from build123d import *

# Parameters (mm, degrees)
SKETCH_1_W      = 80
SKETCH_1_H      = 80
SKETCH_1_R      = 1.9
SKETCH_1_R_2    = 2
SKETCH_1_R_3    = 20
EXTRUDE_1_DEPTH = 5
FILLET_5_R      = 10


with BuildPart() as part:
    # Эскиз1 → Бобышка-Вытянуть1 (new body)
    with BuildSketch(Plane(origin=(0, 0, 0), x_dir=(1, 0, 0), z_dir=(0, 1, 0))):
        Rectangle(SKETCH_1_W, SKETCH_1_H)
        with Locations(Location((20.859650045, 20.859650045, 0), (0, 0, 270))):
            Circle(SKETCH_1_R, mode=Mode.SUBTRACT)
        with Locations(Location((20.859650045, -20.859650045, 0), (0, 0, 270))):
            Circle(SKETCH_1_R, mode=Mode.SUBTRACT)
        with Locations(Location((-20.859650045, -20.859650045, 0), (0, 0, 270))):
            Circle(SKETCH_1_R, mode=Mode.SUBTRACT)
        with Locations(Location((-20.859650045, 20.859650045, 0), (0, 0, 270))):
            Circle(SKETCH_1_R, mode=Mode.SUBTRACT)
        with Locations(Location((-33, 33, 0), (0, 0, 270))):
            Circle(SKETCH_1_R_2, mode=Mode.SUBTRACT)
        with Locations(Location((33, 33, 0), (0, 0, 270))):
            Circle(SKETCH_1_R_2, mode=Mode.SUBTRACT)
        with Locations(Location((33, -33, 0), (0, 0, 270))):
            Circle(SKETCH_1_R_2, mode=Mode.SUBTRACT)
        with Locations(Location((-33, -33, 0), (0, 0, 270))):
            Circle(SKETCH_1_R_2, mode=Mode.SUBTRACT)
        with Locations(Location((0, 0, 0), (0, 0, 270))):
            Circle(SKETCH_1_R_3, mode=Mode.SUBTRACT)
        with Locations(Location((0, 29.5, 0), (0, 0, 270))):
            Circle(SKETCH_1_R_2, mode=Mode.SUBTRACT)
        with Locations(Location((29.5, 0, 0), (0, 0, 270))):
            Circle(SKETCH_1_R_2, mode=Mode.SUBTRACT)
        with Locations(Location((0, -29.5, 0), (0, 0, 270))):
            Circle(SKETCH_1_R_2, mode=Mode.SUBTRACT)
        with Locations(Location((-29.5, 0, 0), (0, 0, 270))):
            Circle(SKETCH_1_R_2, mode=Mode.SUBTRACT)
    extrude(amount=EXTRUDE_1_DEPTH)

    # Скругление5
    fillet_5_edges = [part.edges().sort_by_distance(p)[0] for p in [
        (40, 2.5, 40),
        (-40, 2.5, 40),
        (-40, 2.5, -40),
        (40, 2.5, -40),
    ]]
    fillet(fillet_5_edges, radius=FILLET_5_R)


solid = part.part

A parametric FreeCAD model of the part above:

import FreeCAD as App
import Part
import Sketcher
from FreeCAD import Vector
Q = App.Units.Quantity


def edges_at(feature, points):
    """Names of the edges that pass closest to the given points."""
    edges = feature.Shape.Edges
    near = lambda p: min(range(len(edges)), key=lambda i: edges[i].distToShape(Part.Vertex(*p))[0])
    return sorted({f"Edge{near(p) + 1}" for p in points})


def add_polygon(sketch, points):
    """Adds a closed chain of lines whose ends are joined by coincident constraints."""
    first, n = sketch.GeometryCount, len(points)
    for a, b in zip(points, points[1:] + points[:1]):
        sketch.addGeometry(Part.LineSegment(App.Vector(*a, 0), App.Vector(*b, 0)), False)
    for i in range(n):
        sketch.addConstraint(Sketcher.Constraint("Coincident", first + i, 2, first + (i + 1) % n, 1))

doc = App.newDocument("Part")
body = doc.addObject("PartDesign::Body", "Body")

sketch1 = body.newObject("Sketcher::SketchObject", "Sketch")
sketch1.AttachmentSupport = (doc.getObject("XZ_Plane"), [""])
sketch1.MapMode = "FlatFace"
add_polygon(sketch1, [(-40, -40), (-40, 40), (40, 40), (40, -40)])
sketch1.addGeometry(Part.Circle(Vector(-33, 33, 0), Vector(0, 0, 1), 2), False)
sketch1.addGeometry(Part.Circle(Vector(-20.9, 20.9, 0), Vector(0, 0, 1), 1.9), False)
sketch1.addGeometry(Part.Circle(Vector(0, 29.5, 0), Vector(0, 0, 1), 2), False)
sketch1.addGeometry(Part.Circle(Vector(33, 33, 0), Vector(0, 0, 1), 2), False)
sketch1.addGeometry(Part.Circle(Vector(20.9, 20.9, 0), Vector(0, 0, 1), 1.9), False)
sketch1.addGeometry(Part.Circle(Vector(-29.5, 0, 0), Vector(0, 0, 1), 2), False)
sketch1.addGeometry(Part.Circle(Vector(-20.9, -20.9, 0), Vector(0, 0, 1), 1.9), False)
sketch1.addGeometry(Part.Circle(Vector(-33, -33, 0), Vector(0, 0, 1), 2), False)
sketch1.addGeometry(Part.Circle(Vector(0, 0, 0), Vector(0, 0, 1), 20), False)
sketch1.addGeometry(Part.Circle(Vector(29.5, 0, 0), Vector(0, 0, 1), 2), False)
sketch1.addGeometry(Part.Circle(Vector(0, -29.5, 0), Vector(0, 0, 1), 2), False)
sketch1.addGeometry(Part.Circle(Vector(20.9, -20.9, 0), Vector(0, 0, 1), 1.9), False)
sketch1.addGeometry(Part.Circle(Vector(33, -33, 0), Vector(0, 0, 1), 2), False)
sketch1.addConstraint(Sketcher.Constraint("Vertical", 0))
sketch1.addConstraint(Sketcher.Constraint("Horizontal", 1))
sketch1.addConstraint(Sketcher.Constraint("Vertical", 2))
sketch1.addConstraint(Sketcher.Constraint("Horizontal", 3))
sketch1.addConstraint(Sketcher.Constraint("Coincident", 12, 3, -1, 1))
sketch1.addConstraint(Sketcher.Constraint("Equal", 4, 6))
sketch1.addConstraint(Sketcher.Constraint("Equal", 6, 7))
sketch1.addConstraint(Sketcher.Constraint("Equal", 5, 8))
sketch1.addConstraint(Sketcher.Constraint("Equal", 7, 9))
sketch1.addConstraint(Sketcher.Constraint("Equal", 8, 10))
sketch1.addConstraint(Sketcher.Constraint("Equal", 9, 11))
sketch1.addConstraint(Sketcher.Constraint("Equal", 11, 13))
sketch1.addConstraint(Sketcher.Constraint("Equal", 13, 14))
sketch1.addConstraint(Sketcher.Constraint("Equal", 10, 15))
sketch1.addConstraint(Sketcher.Constraint("Equal", 14, 16))
sketch1.addConstraint(Sketcher.Constraint("Symmetric", 8, 3, 10, 3, -1, 1))
sketch1.addConstraint(Sketcher.Constraint("Symmetric", 7, 3, 11, 3, -1, 1))
sketch1.addConstraint(Sketcher.Constraint("Symmetric", 9, 3, 13, 3, -1, 1))
sketch1.addConstraint(Sketcher.Constraint("Symmetric", 6, 3, 14, 3, -1, 1))
sketch1.addConstraint(Sketcher.Constraint("Symmetric", 5, 3, 15, 3, -1, 1))
sketch1.addConstraint(Sketcher.Constraint("Symmetric", 4, 3, 16, 3, -1, 1))
sketch1.addConstraint(Sketcher.Constraint("Symmetric", 0, 2, 2, 2, -1, 1))
sketch1.addConstraint(Sketcher.Constraint("Symmetric", 4, 3, 7, 3, -2))
sketch1.addConstraint(Sketcher.Constraint("Symmetric", 5, 3, 8, 3, -2))
sketch1.addConstraint(Sketcher.Constraint("PointOnObject", 6, 3, -2))
sketch1.addConstraint(Sketcher.Constraint("PointOnObject", 9, 3, -1))
sketch1.addConstraint(Sketcher.Constraint("Equal", 3, 0))
sketch1.addConstraint(Sketcher.Constraint("Diameter", 4, Q("4 mm")))
sketch1.addConstraint(Sketcher.Constraint("Diameter", 12, Q("40 mm")))
sketch1.addConstraint(Sketcher.Constraint("Diameter", 5, Q("3.8 mm")))
sketch1.addConstraint(Sketcher.Constraint("DistanceX", 1, 1, 1, 2, Q("80 mm")))
sketch1.addConstraint(Sketcher.Constraint("DistanceX", 4, 3, -1, 1, Q("33 mm")))
sketch1.addConstraint(Sketcher.Constraint("DistanceY", -1, 1, 4, 3, Q("33 mm")))
sketch1.addConstraint(Sketcher.Constraint("DistanceY", -1, 1, 6, 3, Q("29.5 mm")))
sketch1.addConstraint(Sketcher.Constraint("DistanceX", 9, 3, -1, 1, Q("29.5 mm")))
sketch1.addConstraint(Sketcher.Constraint("DistanceX", 5, 3, 8, 3, Q("41.7193 mm")))
sketch1.addConstraint(Sketcher.Constraint("DistanceY", 10, 3, 5, 3, Q("41.7193 mm")))
pad1 = body.newObject("PartDesign::Pad", "Pad")
pad1.Profile = sketch1
pad1.Length = 5
pad1.Reversed = True
doc.recompute()

fillet = body.newObject("PartDesign::Fillet", "Fillet")
fillet.Base = (pad1, edges_at(pad1, [
    (40, 2.5, 40),
    (-40, 2.5, 40),
    (-40, 2.5, -40),
    (40, 2.5, -40),
]))
fillet.Radius = 10

doc.recompute()
